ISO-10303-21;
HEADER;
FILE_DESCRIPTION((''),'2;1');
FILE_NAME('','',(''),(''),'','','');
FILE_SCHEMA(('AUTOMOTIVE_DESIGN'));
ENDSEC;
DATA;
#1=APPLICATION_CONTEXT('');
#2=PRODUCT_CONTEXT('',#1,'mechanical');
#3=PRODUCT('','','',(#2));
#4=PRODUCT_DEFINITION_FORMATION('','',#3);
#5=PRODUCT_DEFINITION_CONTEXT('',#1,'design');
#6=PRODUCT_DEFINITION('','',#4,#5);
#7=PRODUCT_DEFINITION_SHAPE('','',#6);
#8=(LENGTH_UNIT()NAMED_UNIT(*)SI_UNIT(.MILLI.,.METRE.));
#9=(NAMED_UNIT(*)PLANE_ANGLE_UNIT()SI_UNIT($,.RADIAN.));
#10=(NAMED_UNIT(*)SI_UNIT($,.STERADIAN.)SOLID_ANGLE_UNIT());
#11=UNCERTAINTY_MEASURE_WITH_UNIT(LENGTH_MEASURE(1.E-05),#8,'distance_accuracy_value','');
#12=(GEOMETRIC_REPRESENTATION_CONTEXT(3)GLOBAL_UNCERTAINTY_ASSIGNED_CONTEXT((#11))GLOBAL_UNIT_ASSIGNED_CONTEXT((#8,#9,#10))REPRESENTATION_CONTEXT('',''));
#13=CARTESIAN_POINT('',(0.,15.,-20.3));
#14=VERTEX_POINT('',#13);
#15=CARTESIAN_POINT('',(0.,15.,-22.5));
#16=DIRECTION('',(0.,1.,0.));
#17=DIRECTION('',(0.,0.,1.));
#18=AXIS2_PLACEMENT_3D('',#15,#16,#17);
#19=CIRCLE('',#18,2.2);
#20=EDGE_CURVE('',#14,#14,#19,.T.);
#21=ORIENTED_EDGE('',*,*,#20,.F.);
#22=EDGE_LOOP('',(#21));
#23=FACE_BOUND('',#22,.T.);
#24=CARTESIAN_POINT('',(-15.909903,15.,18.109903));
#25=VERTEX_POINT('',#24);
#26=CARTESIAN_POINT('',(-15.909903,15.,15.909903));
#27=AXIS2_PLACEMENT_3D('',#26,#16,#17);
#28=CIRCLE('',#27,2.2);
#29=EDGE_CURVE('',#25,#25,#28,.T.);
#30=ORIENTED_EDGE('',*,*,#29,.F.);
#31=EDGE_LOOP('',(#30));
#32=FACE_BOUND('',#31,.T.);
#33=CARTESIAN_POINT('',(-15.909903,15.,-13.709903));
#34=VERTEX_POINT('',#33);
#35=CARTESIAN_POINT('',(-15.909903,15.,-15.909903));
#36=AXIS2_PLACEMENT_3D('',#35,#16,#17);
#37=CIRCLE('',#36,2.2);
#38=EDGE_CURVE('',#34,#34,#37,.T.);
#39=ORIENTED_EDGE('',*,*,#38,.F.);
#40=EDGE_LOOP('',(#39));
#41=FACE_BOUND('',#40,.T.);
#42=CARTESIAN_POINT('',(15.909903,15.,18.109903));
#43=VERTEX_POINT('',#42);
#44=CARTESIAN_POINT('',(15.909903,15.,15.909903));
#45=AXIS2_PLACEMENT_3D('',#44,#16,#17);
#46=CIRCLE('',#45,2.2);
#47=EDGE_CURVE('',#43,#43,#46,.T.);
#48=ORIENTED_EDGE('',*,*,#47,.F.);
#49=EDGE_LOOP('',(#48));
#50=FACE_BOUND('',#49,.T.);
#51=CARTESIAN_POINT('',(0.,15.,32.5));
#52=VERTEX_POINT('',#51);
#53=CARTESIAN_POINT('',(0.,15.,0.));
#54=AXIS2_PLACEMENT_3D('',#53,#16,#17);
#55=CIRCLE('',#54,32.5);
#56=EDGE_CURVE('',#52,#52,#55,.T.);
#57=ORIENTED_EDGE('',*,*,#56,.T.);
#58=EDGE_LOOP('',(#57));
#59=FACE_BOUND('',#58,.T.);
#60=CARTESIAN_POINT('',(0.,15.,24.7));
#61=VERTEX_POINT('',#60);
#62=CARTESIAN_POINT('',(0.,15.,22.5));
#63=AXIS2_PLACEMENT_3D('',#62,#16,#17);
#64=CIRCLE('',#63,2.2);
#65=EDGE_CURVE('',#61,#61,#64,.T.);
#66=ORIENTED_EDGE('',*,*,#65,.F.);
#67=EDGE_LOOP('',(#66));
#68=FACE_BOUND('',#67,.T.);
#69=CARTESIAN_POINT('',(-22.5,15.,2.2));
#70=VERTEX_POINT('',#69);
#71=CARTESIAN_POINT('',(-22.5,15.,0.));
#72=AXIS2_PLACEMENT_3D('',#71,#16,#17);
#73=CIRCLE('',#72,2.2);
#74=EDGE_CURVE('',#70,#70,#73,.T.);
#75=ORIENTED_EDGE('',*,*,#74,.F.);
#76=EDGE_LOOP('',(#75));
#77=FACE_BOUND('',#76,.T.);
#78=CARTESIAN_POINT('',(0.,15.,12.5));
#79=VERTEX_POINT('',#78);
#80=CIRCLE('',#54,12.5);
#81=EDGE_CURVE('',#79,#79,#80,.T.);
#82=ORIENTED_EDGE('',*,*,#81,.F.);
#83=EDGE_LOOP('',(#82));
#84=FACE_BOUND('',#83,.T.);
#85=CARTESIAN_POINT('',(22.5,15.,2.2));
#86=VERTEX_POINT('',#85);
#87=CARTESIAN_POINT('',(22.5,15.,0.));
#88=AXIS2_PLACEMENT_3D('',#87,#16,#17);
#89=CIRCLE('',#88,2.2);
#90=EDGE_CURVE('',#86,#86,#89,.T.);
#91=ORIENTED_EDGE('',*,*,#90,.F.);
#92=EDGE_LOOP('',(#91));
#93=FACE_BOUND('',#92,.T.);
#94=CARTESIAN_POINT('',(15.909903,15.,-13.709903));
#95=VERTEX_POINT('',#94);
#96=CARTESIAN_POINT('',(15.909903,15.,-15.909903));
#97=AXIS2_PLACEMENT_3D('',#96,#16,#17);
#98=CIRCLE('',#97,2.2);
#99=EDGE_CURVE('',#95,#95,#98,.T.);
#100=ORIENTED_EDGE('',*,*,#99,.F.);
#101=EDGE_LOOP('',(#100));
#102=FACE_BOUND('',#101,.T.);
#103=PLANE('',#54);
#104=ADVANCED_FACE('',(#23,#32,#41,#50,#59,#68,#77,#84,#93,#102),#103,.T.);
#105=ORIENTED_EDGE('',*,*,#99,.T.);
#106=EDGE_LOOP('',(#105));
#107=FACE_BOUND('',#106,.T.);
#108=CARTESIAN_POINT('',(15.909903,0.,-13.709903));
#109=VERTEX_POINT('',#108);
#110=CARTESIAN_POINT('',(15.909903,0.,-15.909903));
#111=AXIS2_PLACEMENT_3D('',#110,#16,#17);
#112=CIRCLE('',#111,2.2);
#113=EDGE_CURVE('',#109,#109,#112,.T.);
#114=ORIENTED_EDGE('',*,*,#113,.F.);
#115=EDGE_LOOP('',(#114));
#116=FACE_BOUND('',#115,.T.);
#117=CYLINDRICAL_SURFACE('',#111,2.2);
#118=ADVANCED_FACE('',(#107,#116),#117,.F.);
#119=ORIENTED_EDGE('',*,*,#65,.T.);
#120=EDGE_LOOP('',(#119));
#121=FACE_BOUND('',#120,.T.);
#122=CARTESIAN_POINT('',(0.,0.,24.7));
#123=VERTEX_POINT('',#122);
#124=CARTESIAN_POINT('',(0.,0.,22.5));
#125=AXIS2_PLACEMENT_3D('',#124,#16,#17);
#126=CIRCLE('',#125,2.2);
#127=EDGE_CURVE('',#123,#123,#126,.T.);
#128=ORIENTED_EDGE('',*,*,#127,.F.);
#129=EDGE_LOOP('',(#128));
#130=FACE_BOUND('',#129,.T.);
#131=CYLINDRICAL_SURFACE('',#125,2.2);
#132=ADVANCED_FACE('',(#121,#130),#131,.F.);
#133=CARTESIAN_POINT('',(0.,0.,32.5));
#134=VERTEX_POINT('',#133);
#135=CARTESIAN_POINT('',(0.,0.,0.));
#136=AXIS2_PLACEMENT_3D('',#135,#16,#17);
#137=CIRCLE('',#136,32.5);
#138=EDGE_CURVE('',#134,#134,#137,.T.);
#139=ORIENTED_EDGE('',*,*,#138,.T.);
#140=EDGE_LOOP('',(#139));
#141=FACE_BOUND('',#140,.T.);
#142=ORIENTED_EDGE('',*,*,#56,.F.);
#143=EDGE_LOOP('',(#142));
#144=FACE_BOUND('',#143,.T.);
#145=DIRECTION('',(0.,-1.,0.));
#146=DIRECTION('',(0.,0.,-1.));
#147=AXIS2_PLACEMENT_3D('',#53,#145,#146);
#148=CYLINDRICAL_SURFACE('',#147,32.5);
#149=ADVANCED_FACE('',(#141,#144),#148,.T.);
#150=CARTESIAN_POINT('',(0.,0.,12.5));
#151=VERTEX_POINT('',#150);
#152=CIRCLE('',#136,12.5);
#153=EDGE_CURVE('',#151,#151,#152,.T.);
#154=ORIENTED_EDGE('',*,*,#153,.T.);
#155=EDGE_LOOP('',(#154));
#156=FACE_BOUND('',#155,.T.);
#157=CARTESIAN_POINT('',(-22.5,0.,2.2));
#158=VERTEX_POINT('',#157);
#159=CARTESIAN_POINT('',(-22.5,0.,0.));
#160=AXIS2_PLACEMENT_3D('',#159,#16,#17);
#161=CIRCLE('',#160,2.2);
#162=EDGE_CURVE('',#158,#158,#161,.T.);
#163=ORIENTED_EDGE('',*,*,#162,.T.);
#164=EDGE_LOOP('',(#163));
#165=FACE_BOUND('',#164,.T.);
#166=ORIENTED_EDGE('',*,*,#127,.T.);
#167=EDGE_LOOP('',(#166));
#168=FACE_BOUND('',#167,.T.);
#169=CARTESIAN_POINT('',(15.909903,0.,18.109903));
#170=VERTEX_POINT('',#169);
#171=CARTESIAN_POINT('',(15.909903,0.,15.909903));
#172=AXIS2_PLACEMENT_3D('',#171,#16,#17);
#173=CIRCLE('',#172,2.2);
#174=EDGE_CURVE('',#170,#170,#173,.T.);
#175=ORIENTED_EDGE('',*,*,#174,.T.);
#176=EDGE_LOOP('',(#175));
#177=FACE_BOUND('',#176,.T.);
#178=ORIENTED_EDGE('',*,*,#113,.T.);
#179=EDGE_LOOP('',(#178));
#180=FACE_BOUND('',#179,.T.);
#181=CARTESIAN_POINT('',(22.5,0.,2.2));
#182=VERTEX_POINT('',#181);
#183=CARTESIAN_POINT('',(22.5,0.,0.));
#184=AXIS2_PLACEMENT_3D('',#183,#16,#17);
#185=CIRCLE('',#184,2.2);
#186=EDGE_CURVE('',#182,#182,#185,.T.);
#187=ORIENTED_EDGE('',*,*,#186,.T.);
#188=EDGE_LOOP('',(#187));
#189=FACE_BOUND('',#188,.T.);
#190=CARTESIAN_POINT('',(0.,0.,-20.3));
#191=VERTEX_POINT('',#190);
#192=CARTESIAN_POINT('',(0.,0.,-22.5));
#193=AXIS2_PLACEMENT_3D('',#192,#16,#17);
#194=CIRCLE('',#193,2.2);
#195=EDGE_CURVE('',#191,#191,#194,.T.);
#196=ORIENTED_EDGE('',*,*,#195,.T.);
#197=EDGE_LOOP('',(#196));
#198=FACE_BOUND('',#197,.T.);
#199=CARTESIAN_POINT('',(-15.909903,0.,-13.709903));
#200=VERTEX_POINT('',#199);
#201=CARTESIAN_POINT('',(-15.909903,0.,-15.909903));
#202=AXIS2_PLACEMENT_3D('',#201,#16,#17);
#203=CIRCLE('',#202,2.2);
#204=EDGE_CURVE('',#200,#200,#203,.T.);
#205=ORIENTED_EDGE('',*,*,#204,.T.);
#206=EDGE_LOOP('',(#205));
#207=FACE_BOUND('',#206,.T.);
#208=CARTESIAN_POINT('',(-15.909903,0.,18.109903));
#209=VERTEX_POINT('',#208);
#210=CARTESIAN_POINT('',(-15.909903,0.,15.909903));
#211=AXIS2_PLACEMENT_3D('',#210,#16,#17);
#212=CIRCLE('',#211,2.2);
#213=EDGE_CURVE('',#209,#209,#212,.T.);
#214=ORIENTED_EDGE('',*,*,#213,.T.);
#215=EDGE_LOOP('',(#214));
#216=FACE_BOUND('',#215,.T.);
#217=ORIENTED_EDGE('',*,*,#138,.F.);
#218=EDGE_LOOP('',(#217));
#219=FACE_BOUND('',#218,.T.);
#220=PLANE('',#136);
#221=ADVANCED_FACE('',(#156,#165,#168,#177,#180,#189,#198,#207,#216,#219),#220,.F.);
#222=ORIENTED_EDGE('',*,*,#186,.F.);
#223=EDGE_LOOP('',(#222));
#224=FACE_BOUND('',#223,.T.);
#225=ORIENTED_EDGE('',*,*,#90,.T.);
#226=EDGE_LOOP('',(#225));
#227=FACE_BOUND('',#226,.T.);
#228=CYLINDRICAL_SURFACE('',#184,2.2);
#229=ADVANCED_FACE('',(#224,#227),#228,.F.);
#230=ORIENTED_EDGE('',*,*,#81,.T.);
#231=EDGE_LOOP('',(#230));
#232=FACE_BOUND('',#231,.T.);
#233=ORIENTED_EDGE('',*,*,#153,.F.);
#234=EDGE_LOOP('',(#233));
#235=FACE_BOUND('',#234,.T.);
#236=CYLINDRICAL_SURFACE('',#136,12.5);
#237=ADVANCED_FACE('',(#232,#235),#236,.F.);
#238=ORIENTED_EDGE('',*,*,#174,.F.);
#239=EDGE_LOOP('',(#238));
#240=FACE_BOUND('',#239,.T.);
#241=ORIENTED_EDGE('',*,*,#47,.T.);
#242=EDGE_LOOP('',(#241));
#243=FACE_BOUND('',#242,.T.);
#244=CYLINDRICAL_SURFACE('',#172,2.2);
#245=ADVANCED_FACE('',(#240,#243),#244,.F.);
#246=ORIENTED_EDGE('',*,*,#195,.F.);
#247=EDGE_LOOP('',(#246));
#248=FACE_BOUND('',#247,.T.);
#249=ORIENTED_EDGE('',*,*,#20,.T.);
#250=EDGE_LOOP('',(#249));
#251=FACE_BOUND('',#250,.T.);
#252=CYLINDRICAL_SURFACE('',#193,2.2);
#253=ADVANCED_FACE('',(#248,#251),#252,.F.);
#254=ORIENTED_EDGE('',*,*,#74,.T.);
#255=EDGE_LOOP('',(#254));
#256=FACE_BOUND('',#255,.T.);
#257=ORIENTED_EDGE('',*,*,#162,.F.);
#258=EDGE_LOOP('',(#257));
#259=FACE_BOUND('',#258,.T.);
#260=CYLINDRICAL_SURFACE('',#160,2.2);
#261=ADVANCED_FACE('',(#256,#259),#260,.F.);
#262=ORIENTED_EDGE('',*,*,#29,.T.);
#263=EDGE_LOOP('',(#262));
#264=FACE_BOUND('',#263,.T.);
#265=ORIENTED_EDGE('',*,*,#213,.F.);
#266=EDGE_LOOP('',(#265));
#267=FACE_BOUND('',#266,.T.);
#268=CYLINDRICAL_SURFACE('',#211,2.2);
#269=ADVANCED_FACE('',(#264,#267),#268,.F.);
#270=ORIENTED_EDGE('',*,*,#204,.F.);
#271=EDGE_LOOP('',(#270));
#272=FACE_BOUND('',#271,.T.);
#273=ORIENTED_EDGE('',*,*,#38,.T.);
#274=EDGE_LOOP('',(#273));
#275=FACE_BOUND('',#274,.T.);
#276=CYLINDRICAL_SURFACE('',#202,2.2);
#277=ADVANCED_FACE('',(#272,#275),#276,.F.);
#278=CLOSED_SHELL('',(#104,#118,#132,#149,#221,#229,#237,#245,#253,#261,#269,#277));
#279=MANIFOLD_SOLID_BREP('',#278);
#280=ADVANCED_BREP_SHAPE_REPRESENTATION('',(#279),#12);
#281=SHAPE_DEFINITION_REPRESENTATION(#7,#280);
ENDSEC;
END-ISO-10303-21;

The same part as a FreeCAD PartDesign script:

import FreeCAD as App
import Part
import Sketcher
from FreeCAD import Vector

doc = App.newDocument("Part")
body = doc.addObject("PartDesign::Body", "Body")

# Sketch on XZ plane
sketch1 = doc.addObject("Sketcher::SketchObject", "Sketch")
body.addObject(sketch1)
sketch1.AttachmentSupport = (doc.XZ_Plane, [""])
sketch1.MapMode = "FlatFace"
sketch1.addGeometry(Part.Circle(Vector(0, 0, 0), Vector(0, 0, 1), 32.5), False)
sketch1.addConstraint([
    Sketcher.Constraint("Coincident", 0, 3, -1, 1),
    Sketcher.Constraint("Diameter", 0, 65.0),
])
pad1 = doc.addObject("PartDesign::Pad", "Pad")
body.addObject(pad1)
pad1.Profile = sketch1
pad1.Length = 15
pad1.Reversed = True

# Sketch on XZ plane
sketch2 = doc.addObject("Sketcher::SketchObject", "Sketch001")
body.addObject(sketch2)
sketch2.AttachmentSupport = (doc.XZ_Plane, [""])
sketch2.MapMode = "FlatFace"
sketch2.AttachmentOffset = App.Placement(Vector(0, 0, -15), App.Rotation())
sketch2.addGeometry([
    Part.Circle(Vector(0, -22.5, 0), Vector(0, 0, 1), 2.2),  # 0
    Part.Circle(Vector(15.909903, -15.909903, 0), Vector(0, 0, 1), 2.2),  # 1
    Part.Circle(Vector(22.5, 0, 0), Vector(0, 0, 1), 2.2),  # 2
    Part.Circle(Vector(15.909903, 15.909903, 0), Vector(0, 0, 1), 2.2),  # 3
    Part.Circle(Vector(0, 22.5, 0), Vector(0, 0, 1), 2.2),  # 4
    Part.Circle(Vector(-15.909903, 15.909903, 0), Vector(0, 0, 1), 2.2),  # 5
    Part.Circle(Vector(-22.5, 0, 0), Vector(0, 0, 1), 2.2),  # 6
    Part.Circle(Vector(-15.909903, -15.909903, 0), Vector(0, 0, 1), 2.2),  # 7
], False)
sketch2.addConstraint([
    Sketcher.Constraint("Equal", 0, 1),
    Sketcher.Constraint("Equal", 1, 2),
    Sketcher.Constraint("Equal", 2, 3),
    Sketcher.Constraint("Equal", 3, 4),
    Sketcher.Constraint("Equal", 4, 5),
    Sketcher.Constraint("Equal", 5, 6),
    Sketcher.Constraint("Equal", 6, 7),
    Sketcher.Constraint("Symmetric", 0, 3, 4, 3, -1, 1),
    Sketcher.Constraint("Symmetric", 1, 3, 5, 3, -1, 1),
    Sketcher.Constraint("Symmetric", 2, 3, 6, 3, -1, 1),
    Sketcher.Constraint("Symmetric", 3, 3, 7, 3, -1, 1),
    Sketcher.Constraint("Symmetric", 3, 3, 5, 3, -2),
    Sketcher.Constraint("PointOnObject", 0, 3, -2),
    Sketcher.Constraint("PointOnObject", 2, 3, -1),
    Sketcher.Constraint("Diameter", 0, 4.4),
    Sketcher.Constraint("DistanceY", 0, 3, 4, 3, 45.0),
    Sketcher.Constraint("DistanceX", -1, 1, 2, 3, 22.5),
    Sketcher.Constraint("DistanceX", -1, 1, 1, 3, 15.909903),
    Sketcher.Constraint("DistanceY", 1, 3, -1, 1, 15.909903),
])
pocket1 = doc.addObject("PartDesign::Pocket", "Pocket")
body.addObject(pocket1)
pocket1.Profile = sketch2
pocket1.Type = "ThroughAll"
pocket1.Reversed = True

# Sketch on XZ plane
sketch3 = doc.addObject("Sketcher::SketchObject", "Sketch002")
body.addObject(sketch3)
sketch3.AttachmentSupport = (doc.XZ_Plane, [""])
sketch3.MapMode = "FlatFace"
sketch3.AttachmentOffset = App.Placement(Vector(0, 0, -15), App.Rotation())
sketch3.addGeometry(Part.Circle(Vector(0, 0, 0), Vector(0, 0, 1), 12.5), False)
sketch3.addConstraint([
    Sketcher.Constraint("Coincident", 0, 3, -1, 1),
    Sketcher.Constraint("Diameter", 0, 25.0),
])
pocket2 = doc.addObject("PartDesign::Pocket", "Pocket001")
body.addObject(pocket2)
pocket2.Profile = sketch3
pocket2.Type = "ThroughAll"
pocket2.Reversed = True

doc.recompute()
